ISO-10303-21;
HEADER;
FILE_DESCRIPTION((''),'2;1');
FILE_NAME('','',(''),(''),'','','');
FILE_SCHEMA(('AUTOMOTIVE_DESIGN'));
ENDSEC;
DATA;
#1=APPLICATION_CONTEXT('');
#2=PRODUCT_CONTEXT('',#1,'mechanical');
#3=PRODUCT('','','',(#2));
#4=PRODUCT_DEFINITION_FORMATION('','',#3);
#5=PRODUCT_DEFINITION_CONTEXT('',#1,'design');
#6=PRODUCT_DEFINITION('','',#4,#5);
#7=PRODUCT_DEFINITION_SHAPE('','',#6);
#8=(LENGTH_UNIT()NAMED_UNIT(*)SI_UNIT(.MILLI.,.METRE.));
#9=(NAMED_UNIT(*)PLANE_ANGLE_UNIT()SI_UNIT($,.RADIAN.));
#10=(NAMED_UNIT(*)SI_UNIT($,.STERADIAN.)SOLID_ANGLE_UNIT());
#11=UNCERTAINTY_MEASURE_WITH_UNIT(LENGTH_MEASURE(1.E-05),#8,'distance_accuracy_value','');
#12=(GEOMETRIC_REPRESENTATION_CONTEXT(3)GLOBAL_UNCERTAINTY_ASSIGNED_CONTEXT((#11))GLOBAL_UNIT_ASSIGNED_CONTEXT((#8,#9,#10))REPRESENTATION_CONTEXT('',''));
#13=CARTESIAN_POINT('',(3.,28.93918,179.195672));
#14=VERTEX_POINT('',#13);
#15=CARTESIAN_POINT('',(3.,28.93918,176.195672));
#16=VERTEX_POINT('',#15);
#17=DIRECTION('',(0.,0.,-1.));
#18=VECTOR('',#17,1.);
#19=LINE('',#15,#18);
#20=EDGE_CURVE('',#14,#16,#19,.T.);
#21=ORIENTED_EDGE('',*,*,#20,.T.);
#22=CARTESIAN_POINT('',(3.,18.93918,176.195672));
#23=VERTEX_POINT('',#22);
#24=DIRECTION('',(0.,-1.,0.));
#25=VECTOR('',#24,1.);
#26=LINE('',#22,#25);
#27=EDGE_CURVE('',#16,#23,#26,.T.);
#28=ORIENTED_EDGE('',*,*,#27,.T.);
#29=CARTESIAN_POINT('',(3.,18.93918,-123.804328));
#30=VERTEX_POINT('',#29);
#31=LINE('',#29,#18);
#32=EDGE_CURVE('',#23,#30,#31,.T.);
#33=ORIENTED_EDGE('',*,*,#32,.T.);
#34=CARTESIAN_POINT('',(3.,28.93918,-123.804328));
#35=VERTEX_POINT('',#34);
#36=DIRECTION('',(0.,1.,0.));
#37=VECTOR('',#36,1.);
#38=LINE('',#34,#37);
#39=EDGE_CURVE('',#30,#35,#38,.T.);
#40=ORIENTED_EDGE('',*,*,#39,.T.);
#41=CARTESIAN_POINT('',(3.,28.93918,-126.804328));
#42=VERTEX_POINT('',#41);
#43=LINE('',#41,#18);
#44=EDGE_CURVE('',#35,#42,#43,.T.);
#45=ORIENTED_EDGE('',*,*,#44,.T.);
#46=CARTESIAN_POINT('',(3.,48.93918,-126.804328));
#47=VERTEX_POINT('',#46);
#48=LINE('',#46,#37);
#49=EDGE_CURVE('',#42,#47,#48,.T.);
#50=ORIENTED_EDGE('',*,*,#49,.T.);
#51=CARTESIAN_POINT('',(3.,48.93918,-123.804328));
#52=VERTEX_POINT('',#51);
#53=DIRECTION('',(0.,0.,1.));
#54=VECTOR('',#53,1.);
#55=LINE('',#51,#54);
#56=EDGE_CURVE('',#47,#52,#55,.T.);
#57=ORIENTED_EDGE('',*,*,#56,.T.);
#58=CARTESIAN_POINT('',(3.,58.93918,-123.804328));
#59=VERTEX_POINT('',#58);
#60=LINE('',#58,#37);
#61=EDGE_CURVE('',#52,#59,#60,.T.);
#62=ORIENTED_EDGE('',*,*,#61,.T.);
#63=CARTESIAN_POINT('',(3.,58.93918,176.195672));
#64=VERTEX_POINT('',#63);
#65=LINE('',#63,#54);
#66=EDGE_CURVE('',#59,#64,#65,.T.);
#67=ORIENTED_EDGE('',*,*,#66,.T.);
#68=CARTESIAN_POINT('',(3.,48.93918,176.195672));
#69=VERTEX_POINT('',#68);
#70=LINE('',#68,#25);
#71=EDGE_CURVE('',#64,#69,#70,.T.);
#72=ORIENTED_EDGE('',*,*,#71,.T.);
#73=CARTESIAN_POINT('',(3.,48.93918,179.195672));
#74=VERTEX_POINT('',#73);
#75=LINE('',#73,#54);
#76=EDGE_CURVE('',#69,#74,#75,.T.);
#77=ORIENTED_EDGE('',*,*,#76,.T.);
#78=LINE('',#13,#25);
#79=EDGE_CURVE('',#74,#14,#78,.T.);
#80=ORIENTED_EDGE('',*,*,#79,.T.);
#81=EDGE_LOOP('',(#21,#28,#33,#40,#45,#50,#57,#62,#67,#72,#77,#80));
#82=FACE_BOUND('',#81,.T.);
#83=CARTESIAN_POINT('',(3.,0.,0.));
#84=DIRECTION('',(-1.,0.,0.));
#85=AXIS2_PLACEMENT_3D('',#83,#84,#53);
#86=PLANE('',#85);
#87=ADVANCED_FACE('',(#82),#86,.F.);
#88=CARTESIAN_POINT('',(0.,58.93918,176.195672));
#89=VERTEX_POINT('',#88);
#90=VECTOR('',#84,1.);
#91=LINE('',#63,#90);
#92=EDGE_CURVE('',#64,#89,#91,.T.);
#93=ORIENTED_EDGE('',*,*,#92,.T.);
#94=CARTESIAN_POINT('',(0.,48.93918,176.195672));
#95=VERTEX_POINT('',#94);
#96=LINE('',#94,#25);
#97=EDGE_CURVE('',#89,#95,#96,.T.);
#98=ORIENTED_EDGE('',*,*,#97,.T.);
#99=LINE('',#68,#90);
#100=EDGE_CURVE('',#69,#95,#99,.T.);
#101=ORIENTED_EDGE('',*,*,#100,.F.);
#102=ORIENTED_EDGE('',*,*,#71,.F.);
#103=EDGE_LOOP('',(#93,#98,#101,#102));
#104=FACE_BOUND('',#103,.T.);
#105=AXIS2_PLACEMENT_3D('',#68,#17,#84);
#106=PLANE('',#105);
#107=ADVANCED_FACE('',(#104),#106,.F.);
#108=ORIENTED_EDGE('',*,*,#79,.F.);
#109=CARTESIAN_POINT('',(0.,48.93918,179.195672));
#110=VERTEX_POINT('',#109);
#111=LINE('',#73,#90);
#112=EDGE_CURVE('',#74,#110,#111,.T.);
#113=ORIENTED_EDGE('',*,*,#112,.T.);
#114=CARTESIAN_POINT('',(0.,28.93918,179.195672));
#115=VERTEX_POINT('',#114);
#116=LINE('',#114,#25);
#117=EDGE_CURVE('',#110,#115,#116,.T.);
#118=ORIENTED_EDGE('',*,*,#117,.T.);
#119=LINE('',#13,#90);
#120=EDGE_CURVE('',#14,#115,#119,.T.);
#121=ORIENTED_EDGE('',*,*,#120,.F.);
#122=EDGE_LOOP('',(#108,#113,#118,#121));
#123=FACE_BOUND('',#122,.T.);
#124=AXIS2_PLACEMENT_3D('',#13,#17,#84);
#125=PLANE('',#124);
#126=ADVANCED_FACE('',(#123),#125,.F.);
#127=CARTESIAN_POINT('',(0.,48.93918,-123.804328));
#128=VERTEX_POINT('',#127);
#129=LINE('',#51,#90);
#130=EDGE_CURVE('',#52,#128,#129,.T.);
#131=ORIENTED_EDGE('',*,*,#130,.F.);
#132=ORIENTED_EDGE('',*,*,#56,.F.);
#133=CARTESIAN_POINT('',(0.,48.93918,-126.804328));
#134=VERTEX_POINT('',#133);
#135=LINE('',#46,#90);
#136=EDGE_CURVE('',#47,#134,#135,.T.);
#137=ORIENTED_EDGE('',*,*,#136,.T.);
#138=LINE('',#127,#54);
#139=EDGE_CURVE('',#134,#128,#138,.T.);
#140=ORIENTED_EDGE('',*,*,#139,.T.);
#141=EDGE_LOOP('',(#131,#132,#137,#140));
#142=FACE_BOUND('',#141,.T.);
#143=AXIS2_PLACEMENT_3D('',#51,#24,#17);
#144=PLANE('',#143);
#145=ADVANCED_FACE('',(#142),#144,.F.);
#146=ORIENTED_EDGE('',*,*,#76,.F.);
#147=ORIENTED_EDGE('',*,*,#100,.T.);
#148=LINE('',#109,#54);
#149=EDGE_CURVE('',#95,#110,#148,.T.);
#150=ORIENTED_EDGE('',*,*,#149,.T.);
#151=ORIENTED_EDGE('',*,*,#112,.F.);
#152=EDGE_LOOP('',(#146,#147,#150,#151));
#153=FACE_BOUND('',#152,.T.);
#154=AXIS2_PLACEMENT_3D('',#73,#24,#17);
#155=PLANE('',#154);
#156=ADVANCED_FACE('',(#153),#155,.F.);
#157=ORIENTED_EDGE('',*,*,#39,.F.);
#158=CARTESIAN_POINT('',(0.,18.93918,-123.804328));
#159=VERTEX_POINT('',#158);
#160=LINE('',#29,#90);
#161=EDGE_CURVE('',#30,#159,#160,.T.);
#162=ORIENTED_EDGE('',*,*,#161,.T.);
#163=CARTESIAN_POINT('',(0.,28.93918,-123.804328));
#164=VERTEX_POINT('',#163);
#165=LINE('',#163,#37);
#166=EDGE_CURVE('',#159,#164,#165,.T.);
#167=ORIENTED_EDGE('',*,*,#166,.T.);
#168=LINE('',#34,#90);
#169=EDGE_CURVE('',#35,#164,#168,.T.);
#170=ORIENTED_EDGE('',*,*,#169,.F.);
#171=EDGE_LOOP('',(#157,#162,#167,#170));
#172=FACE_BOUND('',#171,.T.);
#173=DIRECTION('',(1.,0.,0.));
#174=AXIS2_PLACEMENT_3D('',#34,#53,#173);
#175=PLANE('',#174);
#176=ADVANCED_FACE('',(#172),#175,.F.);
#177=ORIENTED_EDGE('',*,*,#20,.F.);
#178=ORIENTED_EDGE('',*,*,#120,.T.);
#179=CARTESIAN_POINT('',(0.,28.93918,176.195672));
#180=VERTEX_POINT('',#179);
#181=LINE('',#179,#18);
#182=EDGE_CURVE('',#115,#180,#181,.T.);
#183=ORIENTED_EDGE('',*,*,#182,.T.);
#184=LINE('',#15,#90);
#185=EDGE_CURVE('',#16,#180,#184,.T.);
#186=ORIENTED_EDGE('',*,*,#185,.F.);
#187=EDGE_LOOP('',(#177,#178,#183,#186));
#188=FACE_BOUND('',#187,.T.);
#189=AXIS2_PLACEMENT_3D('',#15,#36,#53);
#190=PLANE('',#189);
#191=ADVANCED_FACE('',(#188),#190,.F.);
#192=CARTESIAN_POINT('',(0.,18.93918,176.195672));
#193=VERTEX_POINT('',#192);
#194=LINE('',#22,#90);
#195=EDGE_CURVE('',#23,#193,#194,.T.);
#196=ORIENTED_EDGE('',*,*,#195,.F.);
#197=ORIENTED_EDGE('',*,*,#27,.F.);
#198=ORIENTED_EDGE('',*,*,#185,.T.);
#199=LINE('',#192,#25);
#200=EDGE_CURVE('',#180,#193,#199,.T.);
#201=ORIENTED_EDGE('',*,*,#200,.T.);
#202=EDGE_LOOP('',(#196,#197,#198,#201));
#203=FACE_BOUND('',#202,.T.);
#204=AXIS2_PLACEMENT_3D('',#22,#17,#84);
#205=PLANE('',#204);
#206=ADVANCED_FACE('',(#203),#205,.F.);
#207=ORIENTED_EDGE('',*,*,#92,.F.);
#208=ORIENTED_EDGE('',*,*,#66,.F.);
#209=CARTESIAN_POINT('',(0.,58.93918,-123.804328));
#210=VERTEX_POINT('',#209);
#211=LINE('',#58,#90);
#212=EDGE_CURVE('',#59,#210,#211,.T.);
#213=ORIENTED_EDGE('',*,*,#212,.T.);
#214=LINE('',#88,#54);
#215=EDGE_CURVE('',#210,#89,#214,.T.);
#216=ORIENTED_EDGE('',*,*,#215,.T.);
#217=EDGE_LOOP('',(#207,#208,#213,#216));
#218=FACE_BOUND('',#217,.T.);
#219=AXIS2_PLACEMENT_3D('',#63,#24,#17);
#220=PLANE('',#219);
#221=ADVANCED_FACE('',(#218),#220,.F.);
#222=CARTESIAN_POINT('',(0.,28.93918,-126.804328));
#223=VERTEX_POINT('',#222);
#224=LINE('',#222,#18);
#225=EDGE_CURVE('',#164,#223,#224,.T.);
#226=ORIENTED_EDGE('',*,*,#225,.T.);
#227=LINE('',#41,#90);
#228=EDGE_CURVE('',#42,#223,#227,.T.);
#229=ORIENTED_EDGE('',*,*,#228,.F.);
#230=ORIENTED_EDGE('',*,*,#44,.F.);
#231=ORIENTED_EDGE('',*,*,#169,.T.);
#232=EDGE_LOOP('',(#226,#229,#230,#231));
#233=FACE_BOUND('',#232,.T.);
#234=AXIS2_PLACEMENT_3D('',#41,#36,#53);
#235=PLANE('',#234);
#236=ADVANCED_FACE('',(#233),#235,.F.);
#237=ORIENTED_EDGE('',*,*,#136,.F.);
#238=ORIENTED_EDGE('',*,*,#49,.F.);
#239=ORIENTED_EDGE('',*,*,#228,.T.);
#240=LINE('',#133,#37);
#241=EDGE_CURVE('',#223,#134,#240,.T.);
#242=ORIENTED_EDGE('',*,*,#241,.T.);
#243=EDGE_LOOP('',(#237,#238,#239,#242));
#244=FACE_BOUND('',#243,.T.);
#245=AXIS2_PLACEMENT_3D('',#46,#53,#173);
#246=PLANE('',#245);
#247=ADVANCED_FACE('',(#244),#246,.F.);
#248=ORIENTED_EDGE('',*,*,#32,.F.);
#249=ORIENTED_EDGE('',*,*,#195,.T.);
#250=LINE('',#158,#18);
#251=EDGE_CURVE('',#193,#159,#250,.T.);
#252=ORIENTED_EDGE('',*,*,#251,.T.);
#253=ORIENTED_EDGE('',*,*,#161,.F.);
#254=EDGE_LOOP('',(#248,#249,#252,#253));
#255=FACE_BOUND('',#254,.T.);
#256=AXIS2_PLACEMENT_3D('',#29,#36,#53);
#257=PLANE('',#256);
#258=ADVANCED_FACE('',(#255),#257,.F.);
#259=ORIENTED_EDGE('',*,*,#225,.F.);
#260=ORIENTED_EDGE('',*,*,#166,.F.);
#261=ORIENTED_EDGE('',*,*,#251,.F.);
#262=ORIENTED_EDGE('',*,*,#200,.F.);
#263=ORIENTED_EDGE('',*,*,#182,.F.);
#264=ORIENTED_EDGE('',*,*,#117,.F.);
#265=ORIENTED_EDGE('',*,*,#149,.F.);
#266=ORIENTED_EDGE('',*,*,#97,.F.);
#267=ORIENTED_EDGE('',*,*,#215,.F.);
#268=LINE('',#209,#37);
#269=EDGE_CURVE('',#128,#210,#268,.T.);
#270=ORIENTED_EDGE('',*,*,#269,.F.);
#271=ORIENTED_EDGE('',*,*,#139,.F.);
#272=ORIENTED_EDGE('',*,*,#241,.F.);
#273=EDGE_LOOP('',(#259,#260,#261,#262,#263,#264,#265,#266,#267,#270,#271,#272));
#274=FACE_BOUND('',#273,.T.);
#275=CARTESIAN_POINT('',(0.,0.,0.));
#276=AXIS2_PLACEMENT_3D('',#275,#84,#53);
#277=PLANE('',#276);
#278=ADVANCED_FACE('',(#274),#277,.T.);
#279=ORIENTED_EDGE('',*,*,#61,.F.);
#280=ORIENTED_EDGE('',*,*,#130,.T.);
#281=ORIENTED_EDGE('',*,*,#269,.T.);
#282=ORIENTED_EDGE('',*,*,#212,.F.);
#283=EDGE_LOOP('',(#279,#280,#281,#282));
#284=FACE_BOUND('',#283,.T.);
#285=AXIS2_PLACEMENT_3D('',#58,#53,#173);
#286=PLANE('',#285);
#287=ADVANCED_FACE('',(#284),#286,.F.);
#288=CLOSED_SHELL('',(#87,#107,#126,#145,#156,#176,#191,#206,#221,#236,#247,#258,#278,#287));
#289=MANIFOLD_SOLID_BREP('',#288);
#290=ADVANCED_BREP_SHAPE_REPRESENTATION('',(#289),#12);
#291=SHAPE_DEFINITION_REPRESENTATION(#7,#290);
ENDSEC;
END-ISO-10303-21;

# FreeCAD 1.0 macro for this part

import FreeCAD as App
import Part
import Sketcher
Q = App.Units.Quantity

doc = App.newDocument("Part")
params = doc.addObject("Spreadsheet::Sheet", "Params")
for row, (alias, value) in enumerate([
    ("sketch1_width", "10 mm"),
    ("sketch1_width2", "20 mm"),
    ("sketch1_height", "300 mm"),
    ("sketch1_height2", "3 mm"),
    ("pad1_length", "3 mm"),
], start=1):
    params.set(f"A{row}", alias)
    params.set(f"B{row}", "=" + value)
    params.setAlias(f"B{row}", alias)

body = doc.addObject("PartDesign::Body", "Body")

sketch1 = body.newObject("Sketcher::SketchObject", "Sketch")
sketch1.AttachmentSupport = (doc.getObject("YZ_Plane"), [""])
sketch1.MapMode = "FlatFace"
sketch1.addGeometry(Part.LineSegment(App.Vector(58.9, -123.8, 0), App.Vector(58.9, 176.2, 0)), False)
sketch1.addGeometry(Part.LineSegment(App.Vector(58.9, 176.2, 0), App.Vector(48.9, 176.2, 0)), False)
sketch1.addGeometry(Part.LineSegment(App.Vector(48.9, 176.2, 0), App.Vector(48.9, 179.2, 0)), False)
sketch1.addGeometry(Part.LineSegment(App.Vector(48.9, 179.2, 0), App.Vector(28.9, 179.2, 0)), False)
sketch1.addGeometry(Part.LineSegment(App.Vector(28.9, 179.2, 0), App.Vector(28.9, 176.2, 0)), False)
sketch1.addGeometry(Part.LineSegment(App.Vector(28.9, 176.2, 0), App.Vector(18.9, 176.2, 0)), False)
sketch1.addGeometry(Part.LineSegment(App.Vector(18.9, 176.2, 0), App.Vector(18.9, -123.8, 0)), False)
sketch1.addGeometry(Part.LineSegment(App.Vector(18.9, -123.8, 0), App.Vector(28.9, -123.8, 0)), False)
sketch1.addGeometry(Part.LineSegment(App.Vector(28.9, -123.8, 0), App.Vector(28.9, -126.8, 0)), False)
sketch1.addGeometry(Part.LineSegment(App.Vector(28.9, -126.8, 0), App.Vector(48.9, -126.8, 0)), False)
sketch1.addGeometry(Part.LineSegment(App.Vector(48.9, -126.8, 0), App.Vector(48.9, -123.8, 0)), False)
sketch1.addGeometry(Part.LineSegment(App.Vector(48.9, -123.8, 0), App.Vector(58.9, -123.8, 0)), False)
sketch1.addConstraint(Sketcher.Constraint("Coincident", 0, 2, 1, 1))
sketch1.addConstraint(Sketcher.Constraint("Coincident", 1, 2, 2, 1))
sketch1.addConstraint(Sketcher.Constraint("Coincident", 2, 2, 3, 1))
sketch1.addConstraint(Sketcher.Constraint("Coincident", 3, 2, 4, 1))
sketch1.addConstraint(Sketcher.Constraint("Coincident", 4, 2, 5, 1))
sketch1.addConstraint(Sketcher.Constraint("Coincident", 5, 2, 6, 1))
sketch1.addConstraint(Sketcher.Constraint("Coincident", 6, 2, 7, 1))
sketch1.addConstraint(Sketcher.Constraint("Coincident", 7, 2, 8, 1))
sketch1.addConstraint(Sketcher.Constraint("Coincident", 8, 2, 9, 1))
sketch1.addConstraint(Sketcher.Constraint("Coincident", 9, 2, 10, 1))
sketch1.addConstraint(Sketcher.Constraint("Coincident", 10, 2, 11, 1))
sketch1.addConstraint(Sketcher.Constraint("Coincident", 11, 2, 0, 1))
sketch1.addConstraint(Sketcher.Constraint("Vertical", 0))
sketch1.addConstraint(Sketcher.Constraint("Horizontal", 1))
sketch1.addConstraint(Sketcher.Constraint("Vertical", 2))
sketch1.addConstraint(Sketcher.Constraint("Horizontal", 3))
sketch1.addConstraint(Sketcher.Constraint("Vertical", 4))
sketch1.addConstraint(Sketcher.Constraint("Horizontal", 5))
sketch1.addConstraint(Sketcher.Constraint("Vertical", 6))
sketch1.addConstraint(Sketcher.Constraint("Horizontal", 7))
sketch1.addConstraint(Sketcher.Constraint("Vertical", 8))
sketch1.addConstraint(Sketcher.Constraint("Horizontal", 9))
sketch1.addConstraint(Sketcher.Constraint("Vertical", 10))
sketch1.addConstraint(Sketcher.Constraint("Horizontal", 11))
sketch1.addConstraint(Sketcher.Constraint("Horizontal", 1, 2, 4, 2))
sketch1.addConstraint(Sketcher.Constraint("Horizontal", 7, 2, 10, 2))
sketch1.addConstraint(Sketcher.Constraint("Vertical", 4, 2, 7, 2))
sketch1.addConstraint(Sketcher.Constraint("Vertical", 2, 2, 9, 2))
sketch1.addConstraint(Sketcher.Constraint("Equal", 1, 5))
sketch1.addConstraint(Sketcher.Constraint("Equal", 4, 8))
sketch1.addConstraint(Sketcher.Constraint("DistanceX", 1, 2, 1, 1, Q("10 mm")))
sketch1.addConstraint(Sketcher.Constraint("DistanceX", 3, 2, 3, 1, Q("20 mm")))
sketch1.addConstraint(Sketcher.Constraint("DistanceY", 0, 1, 0, 2, Q("300 mm")))
sketch1.addConstraint(Sketcher.Constraint("DistanceY", 2, 1, 2, 2, Q("3 mm")))
sketch1.addConstraint(Sketcher.Constraint("DistanceX", -1, 1, 0, 2, Q("58.93918 mm")))
sketch1.addConstraint(Sketcher.Constraint("DistanceY", -1, 1, 0, 2, Q("176.195672 mm")))
sketch1.setExpression("Constraints[30]", "Params.sketch1_width")
sketch1.setExpression("Constraints[31]", "Params.sketch1_width2")
sketch1.setExpression("Constraints[32]", "Params.sketch1_height")
sketch1.setExpression("Constraints[33]", "Params.sketch1_height2")
pad1 = body.newObject("PartDesign::Pad", "Pad")
pad1.Profile = sketch1
pad1.setExpression("Length", "Params.pad1_length")

doc.recompute()
